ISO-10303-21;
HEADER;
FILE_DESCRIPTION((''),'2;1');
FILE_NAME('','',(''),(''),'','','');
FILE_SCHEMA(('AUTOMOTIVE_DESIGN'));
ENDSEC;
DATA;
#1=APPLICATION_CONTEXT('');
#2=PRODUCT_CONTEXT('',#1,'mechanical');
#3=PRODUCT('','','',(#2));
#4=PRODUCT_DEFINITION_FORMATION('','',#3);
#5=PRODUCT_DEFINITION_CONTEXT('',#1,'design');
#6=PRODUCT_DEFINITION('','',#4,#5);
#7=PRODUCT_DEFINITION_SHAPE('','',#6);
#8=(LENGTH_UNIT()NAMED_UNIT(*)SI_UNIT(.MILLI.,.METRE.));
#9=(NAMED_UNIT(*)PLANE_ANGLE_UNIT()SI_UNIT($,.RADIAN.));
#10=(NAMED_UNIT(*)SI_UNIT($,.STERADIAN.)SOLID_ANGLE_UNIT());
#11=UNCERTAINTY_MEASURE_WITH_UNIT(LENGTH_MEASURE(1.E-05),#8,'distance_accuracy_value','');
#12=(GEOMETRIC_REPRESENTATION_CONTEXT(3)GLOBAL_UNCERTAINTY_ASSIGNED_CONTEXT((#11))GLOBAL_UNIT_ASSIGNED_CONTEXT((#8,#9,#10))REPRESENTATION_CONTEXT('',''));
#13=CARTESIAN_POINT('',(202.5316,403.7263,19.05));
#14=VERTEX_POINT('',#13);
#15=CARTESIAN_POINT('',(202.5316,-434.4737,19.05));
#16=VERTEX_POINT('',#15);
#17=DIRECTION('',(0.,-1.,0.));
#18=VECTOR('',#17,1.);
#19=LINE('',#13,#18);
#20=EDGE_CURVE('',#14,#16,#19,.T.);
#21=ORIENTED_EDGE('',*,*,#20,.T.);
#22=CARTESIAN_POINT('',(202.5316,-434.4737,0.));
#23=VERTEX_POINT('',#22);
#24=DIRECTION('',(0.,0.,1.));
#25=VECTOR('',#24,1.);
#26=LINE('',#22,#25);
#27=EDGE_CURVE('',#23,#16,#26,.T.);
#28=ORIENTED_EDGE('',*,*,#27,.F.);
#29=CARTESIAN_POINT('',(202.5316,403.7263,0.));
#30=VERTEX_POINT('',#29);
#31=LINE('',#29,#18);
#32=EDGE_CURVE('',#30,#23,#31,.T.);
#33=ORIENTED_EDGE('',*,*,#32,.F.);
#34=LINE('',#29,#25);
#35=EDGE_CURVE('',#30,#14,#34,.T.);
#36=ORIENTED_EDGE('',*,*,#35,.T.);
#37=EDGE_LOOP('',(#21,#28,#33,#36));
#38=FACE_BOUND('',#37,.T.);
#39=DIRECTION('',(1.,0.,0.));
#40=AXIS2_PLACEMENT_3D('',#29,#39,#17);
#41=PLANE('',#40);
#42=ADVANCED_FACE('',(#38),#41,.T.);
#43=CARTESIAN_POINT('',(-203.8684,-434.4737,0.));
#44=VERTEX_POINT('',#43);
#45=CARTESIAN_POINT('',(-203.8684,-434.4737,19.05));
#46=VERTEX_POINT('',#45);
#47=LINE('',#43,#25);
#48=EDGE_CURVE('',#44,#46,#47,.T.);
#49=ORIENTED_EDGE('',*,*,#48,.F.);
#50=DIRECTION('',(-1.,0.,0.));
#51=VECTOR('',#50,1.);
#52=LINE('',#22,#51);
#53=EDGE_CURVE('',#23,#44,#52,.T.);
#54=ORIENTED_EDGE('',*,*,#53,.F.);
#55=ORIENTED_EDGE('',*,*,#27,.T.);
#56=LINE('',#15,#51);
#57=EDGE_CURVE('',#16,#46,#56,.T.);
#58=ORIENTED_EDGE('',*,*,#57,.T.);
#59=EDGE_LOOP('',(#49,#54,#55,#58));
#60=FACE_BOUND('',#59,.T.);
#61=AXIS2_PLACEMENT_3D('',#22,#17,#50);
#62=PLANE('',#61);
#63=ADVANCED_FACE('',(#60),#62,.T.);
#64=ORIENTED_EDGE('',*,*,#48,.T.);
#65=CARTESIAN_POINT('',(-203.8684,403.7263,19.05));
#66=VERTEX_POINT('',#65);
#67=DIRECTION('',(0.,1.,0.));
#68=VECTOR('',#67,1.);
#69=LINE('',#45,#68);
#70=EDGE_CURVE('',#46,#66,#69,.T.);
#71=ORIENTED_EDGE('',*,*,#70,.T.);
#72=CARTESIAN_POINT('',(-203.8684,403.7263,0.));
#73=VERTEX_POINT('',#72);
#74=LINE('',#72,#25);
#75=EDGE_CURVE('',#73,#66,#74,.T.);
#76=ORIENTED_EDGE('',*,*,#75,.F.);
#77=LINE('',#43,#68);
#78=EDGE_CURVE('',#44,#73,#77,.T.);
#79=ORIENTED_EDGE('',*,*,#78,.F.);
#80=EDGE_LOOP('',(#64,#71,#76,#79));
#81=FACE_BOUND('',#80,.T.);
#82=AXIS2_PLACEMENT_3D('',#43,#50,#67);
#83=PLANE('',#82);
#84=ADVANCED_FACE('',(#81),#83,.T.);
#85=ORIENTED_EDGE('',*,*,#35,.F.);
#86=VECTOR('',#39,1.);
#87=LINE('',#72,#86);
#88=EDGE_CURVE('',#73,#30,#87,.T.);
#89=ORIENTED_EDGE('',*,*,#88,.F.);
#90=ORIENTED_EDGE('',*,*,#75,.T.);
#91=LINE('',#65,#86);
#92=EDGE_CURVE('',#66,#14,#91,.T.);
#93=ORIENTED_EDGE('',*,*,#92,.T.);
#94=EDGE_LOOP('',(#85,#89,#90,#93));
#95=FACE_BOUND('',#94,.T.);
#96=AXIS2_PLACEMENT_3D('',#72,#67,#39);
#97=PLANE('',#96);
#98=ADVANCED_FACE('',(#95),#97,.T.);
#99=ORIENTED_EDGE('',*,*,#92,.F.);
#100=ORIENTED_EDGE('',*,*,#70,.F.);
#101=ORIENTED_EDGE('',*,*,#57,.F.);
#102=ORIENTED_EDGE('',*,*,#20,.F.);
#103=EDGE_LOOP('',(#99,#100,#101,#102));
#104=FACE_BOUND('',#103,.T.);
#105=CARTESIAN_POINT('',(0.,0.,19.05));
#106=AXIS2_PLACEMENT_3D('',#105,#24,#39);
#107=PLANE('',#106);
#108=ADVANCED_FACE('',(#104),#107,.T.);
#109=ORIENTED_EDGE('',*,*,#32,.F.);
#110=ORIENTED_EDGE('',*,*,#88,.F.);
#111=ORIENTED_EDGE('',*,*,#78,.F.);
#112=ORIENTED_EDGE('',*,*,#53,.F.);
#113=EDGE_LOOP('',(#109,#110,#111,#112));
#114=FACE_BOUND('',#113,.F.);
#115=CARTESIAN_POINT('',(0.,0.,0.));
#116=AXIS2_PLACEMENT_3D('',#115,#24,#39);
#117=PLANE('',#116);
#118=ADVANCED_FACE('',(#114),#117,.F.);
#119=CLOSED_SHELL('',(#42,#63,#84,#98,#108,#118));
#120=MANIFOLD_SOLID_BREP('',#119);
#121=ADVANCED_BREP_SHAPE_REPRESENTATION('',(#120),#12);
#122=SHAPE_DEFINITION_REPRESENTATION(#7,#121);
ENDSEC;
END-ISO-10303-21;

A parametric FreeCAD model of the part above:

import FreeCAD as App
import Part
import Sketcher
from FreeCAD import Vector
Q = App.Units.Quantity


def add_polygon(sketch, points):
    """Adds a closed chain of lines whose ends are joined by coincident constraints."""
    first, n = sketch.GeometryCount, len(points)
    for a, b in zip(points, points[1:] + points[:1]):
        sketch.addGeometry(Part.LineSegment(App.Vector(*a, 0), App.Vector(*b, 0)), False)
    for i in range(n):
        sketch.addConstraint(Sketcher.Constraint("Coincident", first + i, 2, first + (i + 1) % n, 1))

doc = App.newDocument("Part")
body = doc.addObject("PartDesign::Body", "Body")

# Sketch on XY plane
sketch1 = body.newObject("Sketcher::SketchObject", "Sketch")
sketch1.AttachmentSupport = (doc.getObject("XY_Plane"), [""])
sketch1.MapMode = "FlatFace"
add_polygon(sketch1, [(203, 404), (-204, 404), (-204, -434), (203, -434)])  # lines 0-3
sketch1.addConstraint([
    Sketcher.Constraint("Horizontal", 0),
    Sketcher.Constraint("Vertical", 1),
    Sketcher.Constraint("Horizontal", 2),
    Sketcher.Constraint("Vertical", 3),
    Sketcher.Constraint("DistanceX", 0, 2, 0, 1, Q("16 in")),
    Sketcher.Constraint("DistanceY", 1, 2, 1, 1, Q("33 in")),
    Sketcher.Constraint("DistanceX", 0, 2, -1, 1, 203.8684),
    Sketcher.Constraint("DistanceY", -1, 1, 0, 2, 403.7263),
])
pad1 = body.newObject("PartDesign::Pad", "Pad")
pad1.Profile = sketch1
pad1.Length = Q("0.75 in")

doc.recompute()
